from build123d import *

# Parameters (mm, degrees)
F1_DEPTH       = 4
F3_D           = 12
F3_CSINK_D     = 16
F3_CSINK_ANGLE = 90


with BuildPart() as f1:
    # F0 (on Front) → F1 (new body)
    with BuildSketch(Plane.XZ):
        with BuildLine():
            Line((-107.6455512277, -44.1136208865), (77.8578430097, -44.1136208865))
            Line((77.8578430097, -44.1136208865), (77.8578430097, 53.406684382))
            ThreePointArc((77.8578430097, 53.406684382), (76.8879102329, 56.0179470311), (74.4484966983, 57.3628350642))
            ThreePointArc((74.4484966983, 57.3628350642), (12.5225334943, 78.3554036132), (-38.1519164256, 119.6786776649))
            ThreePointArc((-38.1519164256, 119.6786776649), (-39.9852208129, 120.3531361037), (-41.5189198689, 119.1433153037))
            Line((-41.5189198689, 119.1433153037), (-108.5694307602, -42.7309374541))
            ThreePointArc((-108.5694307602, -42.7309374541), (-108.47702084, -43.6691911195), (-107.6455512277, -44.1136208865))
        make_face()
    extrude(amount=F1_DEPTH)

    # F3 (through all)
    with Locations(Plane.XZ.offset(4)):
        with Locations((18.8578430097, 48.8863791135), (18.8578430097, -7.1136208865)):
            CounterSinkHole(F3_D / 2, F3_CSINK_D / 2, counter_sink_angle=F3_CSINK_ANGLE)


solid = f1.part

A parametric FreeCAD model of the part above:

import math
import FreeCAD as App
import Part
import Sketcher

V = App.Vector
Q = App.Units.Quantity

doc = App.newDocument("Part")
params = doc.addObject("Spreadsheet::Sheet", "Params")
for row, (alias, value) in enumerate([
    ("sketch1_radius", "4 mm"),
    ("sketch1_radius2", "184 mm"),
    ("sketch1_radius3", "2 mm"),
    ("sketch1_radius4", "1 mm"),
    ("pad1_length", "4 mm"),
    ("sketch2_diameter", "12 mm"),
    ("hole_diameter", "12 mm"),
    ("hole_csink_diameter", "16 mm"),
], start=1):
    params.set(f"A{row}", alias)
    params.set(f"B{row}", "=" + value)
    params.setAlias(f"B{row}", alias)

body = doc.addObject("PartDesign::Body", "Body")

# Sketch on XZ plane
sketch1 = body.newObject("Sketcher::SketchObject", "Sketch")
sketch1.AttachmentSupport = (doc.getObject("XZ_Plane"), [""])
sketch1.MapMode = "FlatFace"
sketch1.addGeometry(Part.LineSegment(V(-107.645551, -44.113621, 0), V(77.857843, -44.113621, 0)), False)
sketch1.addGeometry(Part.LineSegment(V(77.857843, -44.113621, 0), V(77.857843, 53.406684, 0)), False)
sketch1.addGeometry(Part.ArcOfCircle(Part.Circle(V(73.857843, 53.406684, 0), V(0, 0, 1), 4), math.radians(0), math.radians(81.508457)), False)
sketch1.addGeometry(Part.ArcOfCircle(Part.Circle(V(101.618566, 239.345766, 0), V(0, 0, 1), 184), math.radians(-139.430902), math.radians(-98.491543)), False)
sketch1.addGeometry(Part.ArcOfCircle(Part.Circle(V(-39.671161, 118.377948, 0), V(0, 0, 1), 2), math.radians(40.569098), math.radians(157.5)), False)
sketch1.addGeometry(Part.LineSegment(V(-41.51892, 119.143315, 0), V(-108.569431, -42.730937, 0)), False)
sketch1.addGeometry(Part.ArcOfCircle(Part.Circle(V(-107.645551, -43.113621, 0), V(0, 0, 1), 1), math.radians(157.5), math.radians(270)), False)
sketch1.addConstraint(Sketcher.Constraint("Coincident", 0, 2, 1, 1))
sketch1.addConstraint(Sketcher.Constraint("Tangent", 1, 2, 2, 1))
sketch1.addConstraint(Sketcher.Constraint("Tangent", 2, 2, 3, 2))
sketch1.addConstraint(Sketcher.Constraint("Tangent", 3, 1, 4, 1))
sketch1.addConstraint(Sketcher.Constraint("Tangent", 4, 2, 5, 1))
sketch1.addConstraint(Sketcher.Constraint("Tangent", 5, 2, 6, 1))
sketch1.addConstraint(Sketcher.Constraint("Tangent", 6, 2, 0, 1))
sketch1.addConstraint(Sketcher.Constraint("Horizontal", 0))
sketch1.addConstraint(Sketcher.Constraint("Vertical", 1))
sketch1.addConstraint(Sketcher.Constraint("Radius", 2, 4.0))
sketch1.addConstraint(Sketcher.Constraint("Radius", 3, 184.0))
sketch1.addConstraint(Sketcher.Constraint("Radius", 4, 2.0))
sketch1.addConstraint(Sketcher.Constraint("Radius", 6, 1.0))
sketch1.addConstraint(Sketcher.Constraint("Angle", 5, Q("-112.5 deg")))
sketch1.addConstraint(Sketcher.Constraint("DistanceY", 6, 3, 3, 1, 162.792299))
sketch1.addConstraint(Sketcher.Constraint("Distance", 5, 175.211429))
sketch1.addConstraint(Sketcher.Constraint("DistanceX", 0, 1, 0, 2, 185.503394))
sketch1.addConstraint(Sketcher.Constraint("DistanceX", 4, 3, -1, 1, 39.671161))
sketch1.addConstraint(Sketcher.Constraint("DistanceY", -1, 1, 4, 3, 118.377948))
sketch1.setExpression("Constraints[9]", "Params.sketch1_radius")
sketch1.setExpression("Constraints[10]", "Params.sketch1_radius2")
sketch1.setExpression("Constraints[11]", "Params.sketch1_radius3")
sketch1.setExpression("Constraints[12]", "Params.sketch1_radius4")
pad1 = body.newObject("PartDesign::Pad", "Pad")
pad1.Profile = sketch1
pad1.setExpression("Length", "Params.pad1_length")

# Sketch on XZ plane
sketch2 = body.newObject("Sketcher::SketchObject", "Sketch001")
sketch2.AttachmentSupport = (doc.getObject("XZ_Plane"), [""])
sketch2.MapMode = "FlatFace"
sketch2.AttachmentOffset = App.Placement(V(0, 0, 4), App.Rotation())
sketch2.addGeometry(Part.Circle(V(18.857843, 48.886379, 0), V(0, 0, 1), 6), False)
sketch2.addGeometry(Part.Circle(V(18.857843, -7.113621, 0), V(0, 0, 1), 6), False)
sketch2.addConstraint(Sketcher.Constraint("Equal", 0, 1))
sketch2.addConstraint(Sketcher.Constraint("Vertical", 0, 3, 1, 3))
sketch2.addConstraint(Sketcher.Constraint("Diameter", 0, 12.0))
sketch2.addConstraint(Sketcher.Constraint("DistanceY", 1, 3, 0, 3, 56.0))
sketch2.addConstraint(Sketcher.Constraint("DistanceY", -1, 1, 0, 3, 48.886379))
sketch2.addConstraint(Sketcher.Constraint("DistanceX", -1, 1, 0, 3, 18.857843))
sketch2.setExpression("Constraints[2]", "Params.sketch2_diameter")
doc.recompute()
hole = body.newObject("PartDesign::Hole", "Hole")
hole.Profile = sketch2
hole.ThreadType = "None"
hole.setExpression("Diameter", "Params.hole_diameter")
hole.DepthType = "ThroughAll"
hole.HoleCutType = "Countersink"
hole.setExpression("HoleCutDiameter", "Params.hole_csink_diameter")
hole.HoleCutCountersinkAngle = 90

doc.recompute()
